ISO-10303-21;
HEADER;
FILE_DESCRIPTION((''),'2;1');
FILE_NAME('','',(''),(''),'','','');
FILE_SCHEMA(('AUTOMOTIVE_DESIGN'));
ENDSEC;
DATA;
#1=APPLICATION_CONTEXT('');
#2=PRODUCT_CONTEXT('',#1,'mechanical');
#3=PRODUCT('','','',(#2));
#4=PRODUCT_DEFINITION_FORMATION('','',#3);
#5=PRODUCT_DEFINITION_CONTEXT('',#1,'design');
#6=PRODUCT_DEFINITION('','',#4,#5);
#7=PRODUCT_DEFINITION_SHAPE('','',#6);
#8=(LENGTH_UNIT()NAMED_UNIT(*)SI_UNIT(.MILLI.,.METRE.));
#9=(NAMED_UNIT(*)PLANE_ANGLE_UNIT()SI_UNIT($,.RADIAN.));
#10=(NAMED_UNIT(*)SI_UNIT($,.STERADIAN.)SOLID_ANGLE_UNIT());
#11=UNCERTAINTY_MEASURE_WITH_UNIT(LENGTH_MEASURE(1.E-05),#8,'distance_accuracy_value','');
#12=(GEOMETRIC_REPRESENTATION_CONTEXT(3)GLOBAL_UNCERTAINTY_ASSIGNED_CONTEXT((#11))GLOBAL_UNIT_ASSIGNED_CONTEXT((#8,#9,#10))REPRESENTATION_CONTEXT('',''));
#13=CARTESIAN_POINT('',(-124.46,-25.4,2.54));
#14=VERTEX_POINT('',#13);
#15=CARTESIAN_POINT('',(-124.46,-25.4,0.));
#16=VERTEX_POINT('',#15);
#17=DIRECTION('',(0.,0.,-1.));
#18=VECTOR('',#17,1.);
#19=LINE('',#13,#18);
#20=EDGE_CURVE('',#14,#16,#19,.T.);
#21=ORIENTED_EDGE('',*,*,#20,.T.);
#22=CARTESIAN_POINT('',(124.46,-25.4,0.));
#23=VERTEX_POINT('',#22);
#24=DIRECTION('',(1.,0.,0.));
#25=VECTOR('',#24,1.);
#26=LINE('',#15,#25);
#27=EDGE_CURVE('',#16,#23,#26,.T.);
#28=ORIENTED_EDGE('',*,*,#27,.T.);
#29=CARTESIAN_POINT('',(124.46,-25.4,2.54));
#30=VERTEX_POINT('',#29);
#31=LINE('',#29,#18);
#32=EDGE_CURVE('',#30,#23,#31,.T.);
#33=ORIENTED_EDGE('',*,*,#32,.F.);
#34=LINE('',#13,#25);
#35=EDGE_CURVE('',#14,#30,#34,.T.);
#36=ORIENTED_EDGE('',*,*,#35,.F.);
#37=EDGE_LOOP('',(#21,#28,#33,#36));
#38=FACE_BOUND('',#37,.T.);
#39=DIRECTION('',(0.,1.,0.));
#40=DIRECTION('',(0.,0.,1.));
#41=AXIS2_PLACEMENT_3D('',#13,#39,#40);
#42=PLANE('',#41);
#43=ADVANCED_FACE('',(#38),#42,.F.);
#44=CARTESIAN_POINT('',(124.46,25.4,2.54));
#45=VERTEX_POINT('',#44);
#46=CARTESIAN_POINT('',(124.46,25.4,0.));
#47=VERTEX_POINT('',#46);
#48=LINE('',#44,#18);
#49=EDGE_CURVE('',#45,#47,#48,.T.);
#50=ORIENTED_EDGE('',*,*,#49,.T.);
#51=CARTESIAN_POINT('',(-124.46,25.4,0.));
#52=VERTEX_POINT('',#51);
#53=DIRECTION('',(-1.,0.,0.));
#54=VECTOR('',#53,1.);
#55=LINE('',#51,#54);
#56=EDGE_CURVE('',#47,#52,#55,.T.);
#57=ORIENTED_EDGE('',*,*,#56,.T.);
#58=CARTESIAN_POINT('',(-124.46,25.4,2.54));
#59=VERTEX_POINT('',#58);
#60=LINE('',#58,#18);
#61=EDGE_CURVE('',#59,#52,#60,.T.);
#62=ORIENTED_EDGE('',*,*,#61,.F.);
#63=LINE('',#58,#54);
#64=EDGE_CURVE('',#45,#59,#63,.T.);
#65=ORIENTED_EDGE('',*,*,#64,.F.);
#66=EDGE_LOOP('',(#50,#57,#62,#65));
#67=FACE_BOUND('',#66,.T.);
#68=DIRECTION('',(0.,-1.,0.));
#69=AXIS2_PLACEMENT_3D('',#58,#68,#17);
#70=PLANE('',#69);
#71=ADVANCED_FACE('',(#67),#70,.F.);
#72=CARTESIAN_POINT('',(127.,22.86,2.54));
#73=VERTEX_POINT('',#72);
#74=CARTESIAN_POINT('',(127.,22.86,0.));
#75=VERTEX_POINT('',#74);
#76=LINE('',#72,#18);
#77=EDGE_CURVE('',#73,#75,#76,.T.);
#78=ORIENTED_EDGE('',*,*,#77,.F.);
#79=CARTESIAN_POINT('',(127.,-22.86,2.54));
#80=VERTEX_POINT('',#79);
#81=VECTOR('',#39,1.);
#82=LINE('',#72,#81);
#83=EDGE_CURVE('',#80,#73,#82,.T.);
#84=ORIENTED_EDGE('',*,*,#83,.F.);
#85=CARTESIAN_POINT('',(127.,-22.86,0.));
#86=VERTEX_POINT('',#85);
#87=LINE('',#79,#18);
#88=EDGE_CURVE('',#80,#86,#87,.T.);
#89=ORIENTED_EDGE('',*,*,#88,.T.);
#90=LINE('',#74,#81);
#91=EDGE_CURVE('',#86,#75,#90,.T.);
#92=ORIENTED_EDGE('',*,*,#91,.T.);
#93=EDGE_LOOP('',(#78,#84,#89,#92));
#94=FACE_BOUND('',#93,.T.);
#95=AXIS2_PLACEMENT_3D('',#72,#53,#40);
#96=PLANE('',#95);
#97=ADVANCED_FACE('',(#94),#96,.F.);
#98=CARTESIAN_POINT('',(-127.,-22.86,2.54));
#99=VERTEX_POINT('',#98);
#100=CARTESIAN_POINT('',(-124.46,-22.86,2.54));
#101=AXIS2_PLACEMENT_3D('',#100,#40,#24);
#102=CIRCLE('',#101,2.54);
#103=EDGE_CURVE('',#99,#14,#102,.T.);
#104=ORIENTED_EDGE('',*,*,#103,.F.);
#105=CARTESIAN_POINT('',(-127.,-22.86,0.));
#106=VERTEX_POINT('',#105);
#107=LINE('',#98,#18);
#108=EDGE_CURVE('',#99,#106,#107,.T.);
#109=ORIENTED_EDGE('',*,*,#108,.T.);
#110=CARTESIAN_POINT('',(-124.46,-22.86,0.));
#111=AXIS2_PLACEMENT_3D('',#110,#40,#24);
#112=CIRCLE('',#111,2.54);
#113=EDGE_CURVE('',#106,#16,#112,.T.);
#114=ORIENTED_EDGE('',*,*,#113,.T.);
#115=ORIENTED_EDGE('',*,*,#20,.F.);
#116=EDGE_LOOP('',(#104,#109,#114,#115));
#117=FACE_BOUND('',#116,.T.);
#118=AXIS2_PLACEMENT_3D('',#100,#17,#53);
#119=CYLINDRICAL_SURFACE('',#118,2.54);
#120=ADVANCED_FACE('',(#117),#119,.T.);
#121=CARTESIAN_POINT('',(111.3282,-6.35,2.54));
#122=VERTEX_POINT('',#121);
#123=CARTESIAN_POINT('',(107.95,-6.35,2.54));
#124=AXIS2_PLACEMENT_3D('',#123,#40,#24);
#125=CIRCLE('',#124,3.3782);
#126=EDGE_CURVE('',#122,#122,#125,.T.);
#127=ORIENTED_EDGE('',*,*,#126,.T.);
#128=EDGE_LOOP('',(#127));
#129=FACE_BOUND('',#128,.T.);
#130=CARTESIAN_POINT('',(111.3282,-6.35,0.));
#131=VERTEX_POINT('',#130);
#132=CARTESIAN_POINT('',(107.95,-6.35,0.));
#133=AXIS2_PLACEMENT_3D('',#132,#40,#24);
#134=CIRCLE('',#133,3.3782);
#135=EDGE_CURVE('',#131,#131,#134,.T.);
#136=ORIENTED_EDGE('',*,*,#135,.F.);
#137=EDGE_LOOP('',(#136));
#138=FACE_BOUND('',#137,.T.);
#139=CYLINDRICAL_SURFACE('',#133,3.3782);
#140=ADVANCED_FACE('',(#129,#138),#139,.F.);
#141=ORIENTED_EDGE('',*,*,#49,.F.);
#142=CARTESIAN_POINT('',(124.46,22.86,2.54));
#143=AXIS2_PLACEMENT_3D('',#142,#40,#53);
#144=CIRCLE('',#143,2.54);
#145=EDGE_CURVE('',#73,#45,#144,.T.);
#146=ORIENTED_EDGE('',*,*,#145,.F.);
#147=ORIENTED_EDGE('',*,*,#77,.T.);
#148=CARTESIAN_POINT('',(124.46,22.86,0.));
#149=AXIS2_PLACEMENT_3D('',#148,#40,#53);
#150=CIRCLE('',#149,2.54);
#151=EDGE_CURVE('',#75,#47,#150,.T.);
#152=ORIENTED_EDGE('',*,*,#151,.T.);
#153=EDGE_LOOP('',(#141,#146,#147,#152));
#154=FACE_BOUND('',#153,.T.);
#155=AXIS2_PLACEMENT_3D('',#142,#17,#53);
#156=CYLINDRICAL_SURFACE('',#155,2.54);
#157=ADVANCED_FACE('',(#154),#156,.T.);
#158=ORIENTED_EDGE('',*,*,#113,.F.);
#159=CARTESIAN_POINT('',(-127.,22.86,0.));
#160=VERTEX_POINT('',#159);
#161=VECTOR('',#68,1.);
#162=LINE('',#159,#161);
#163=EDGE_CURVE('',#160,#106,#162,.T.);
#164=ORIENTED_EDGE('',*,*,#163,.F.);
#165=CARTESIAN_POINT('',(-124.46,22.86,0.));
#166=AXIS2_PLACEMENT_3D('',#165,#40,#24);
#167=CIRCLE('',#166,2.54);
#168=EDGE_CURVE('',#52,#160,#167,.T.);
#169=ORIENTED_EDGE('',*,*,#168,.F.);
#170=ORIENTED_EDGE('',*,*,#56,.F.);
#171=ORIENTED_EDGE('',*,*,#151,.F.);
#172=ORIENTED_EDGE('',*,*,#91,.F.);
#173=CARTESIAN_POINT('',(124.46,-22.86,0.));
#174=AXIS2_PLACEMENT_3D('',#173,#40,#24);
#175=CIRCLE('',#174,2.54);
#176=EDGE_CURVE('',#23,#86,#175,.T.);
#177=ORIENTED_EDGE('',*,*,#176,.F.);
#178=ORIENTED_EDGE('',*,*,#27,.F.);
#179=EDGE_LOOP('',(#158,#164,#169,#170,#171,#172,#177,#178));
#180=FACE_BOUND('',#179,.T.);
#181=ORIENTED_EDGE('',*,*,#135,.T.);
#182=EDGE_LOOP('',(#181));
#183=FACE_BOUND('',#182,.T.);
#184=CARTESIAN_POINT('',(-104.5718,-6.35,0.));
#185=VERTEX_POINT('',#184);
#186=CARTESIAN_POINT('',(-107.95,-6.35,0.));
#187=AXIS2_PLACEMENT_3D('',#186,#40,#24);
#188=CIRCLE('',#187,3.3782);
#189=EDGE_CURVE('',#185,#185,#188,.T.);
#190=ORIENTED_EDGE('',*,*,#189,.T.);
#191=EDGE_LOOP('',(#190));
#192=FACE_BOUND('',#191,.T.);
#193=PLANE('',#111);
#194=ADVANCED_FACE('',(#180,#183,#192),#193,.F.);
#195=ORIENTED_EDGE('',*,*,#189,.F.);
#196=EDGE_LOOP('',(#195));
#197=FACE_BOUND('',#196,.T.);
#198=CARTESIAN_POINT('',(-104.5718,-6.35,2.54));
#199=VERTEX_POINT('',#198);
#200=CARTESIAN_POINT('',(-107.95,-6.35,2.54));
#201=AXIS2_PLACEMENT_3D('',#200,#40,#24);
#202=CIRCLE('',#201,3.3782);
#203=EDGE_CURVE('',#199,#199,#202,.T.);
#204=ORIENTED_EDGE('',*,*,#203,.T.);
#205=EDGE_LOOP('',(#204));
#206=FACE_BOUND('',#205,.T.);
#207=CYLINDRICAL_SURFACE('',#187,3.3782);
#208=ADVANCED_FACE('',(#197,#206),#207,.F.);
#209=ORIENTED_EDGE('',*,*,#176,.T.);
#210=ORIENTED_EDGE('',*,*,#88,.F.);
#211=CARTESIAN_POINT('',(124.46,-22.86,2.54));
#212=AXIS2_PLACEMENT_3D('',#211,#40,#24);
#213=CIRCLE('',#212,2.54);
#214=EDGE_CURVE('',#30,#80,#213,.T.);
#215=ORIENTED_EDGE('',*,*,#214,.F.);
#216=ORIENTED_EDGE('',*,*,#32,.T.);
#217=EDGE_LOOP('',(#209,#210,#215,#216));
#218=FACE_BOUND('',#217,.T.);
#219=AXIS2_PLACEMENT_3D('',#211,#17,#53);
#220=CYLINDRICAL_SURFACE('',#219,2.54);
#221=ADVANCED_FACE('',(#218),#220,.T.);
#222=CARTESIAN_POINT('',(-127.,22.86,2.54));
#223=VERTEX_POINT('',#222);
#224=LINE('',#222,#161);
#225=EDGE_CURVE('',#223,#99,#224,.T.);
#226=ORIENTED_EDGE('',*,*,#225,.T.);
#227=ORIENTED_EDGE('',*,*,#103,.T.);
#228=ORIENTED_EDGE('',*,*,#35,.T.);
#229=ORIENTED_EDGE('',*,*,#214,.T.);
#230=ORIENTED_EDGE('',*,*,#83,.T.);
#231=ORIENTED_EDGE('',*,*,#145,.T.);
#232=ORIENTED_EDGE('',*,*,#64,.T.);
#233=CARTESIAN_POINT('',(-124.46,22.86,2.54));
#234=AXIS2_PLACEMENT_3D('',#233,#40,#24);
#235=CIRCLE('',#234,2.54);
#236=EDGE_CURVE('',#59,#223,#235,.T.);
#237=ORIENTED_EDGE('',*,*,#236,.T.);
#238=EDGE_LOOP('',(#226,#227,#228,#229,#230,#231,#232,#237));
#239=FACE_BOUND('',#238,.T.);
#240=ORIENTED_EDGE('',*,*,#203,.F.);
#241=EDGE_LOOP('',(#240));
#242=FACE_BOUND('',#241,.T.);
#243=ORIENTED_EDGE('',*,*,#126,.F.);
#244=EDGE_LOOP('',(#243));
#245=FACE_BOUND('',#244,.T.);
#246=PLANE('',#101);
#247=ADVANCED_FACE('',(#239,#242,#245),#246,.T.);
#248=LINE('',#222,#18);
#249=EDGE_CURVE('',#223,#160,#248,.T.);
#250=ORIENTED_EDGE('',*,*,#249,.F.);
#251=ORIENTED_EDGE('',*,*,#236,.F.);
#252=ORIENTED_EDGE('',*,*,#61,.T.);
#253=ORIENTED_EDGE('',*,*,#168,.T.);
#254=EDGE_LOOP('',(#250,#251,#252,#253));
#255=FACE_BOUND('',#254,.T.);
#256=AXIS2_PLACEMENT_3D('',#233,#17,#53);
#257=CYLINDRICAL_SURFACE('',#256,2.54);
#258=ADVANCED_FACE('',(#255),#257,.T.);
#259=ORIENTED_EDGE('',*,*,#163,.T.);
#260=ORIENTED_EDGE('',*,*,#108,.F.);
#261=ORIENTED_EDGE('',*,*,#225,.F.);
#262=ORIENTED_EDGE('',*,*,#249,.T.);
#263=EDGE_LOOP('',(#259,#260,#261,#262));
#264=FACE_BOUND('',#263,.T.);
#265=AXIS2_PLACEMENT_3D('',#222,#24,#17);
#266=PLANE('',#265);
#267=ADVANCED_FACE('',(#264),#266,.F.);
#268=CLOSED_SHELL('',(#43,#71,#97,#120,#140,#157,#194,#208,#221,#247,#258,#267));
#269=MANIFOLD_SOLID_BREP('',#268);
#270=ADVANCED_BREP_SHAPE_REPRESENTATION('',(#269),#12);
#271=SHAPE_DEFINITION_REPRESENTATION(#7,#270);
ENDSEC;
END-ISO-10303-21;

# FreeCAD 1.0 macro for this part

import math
import FreeCAD as App
import Part
import Sketcher
from FreeCAD import Vector
Q = App.Units.Quantity

doc = App.newDocument("Part")
body = doc.addObject("PartDesign::Body", "Body")

# Sketch on XY plane
sketch1 = doc.addObject("Sketcher::SketchObject", "Sketch")
body.addObject(sketch1)
sketch1.AttachmentSupport = (doc.XY_Plane, [""])
sketch1.MapMode = "FlatFace"
sketch1.addGeometry(Part.LineSegment(Vector(124.5, 25.4, 0), Vector(-124.5, 25.4, 0)), False)
sketch1.addGeometry(Part.ArcOfCircle(Part.Circle(Vector(-124.5, 22.9, 0), Vector(0, 0, 1), 2.5), math.radians(90), math.radians(180)), False)
sketch1.addGeometry(Part.LineSegment(Vector(-127, 22.9, 0), Vector(-127, -22.9, 0)), False)
sketch1.addGeometry(Part.ArcOfCircle(Part.Circle(Vector(-124.5, -22.9, 0), Vector(0, 0, 1), 2.5), math.radians(-180), math.radians(-90)), False)
sketch1.addGeometry(Part.LineSegment(Vector(-124.5, -25.4, 0), Vector(124.5, -25.4, 0)), False)
sketch1.addGeometry(Part.ArcOfCircle(Part.Circle(Vector(124.5, -22.9, 0), Vector(0, 0, 1), 2.5), math.radians(-90), math.radians(0)), False)
sketch1.addGeometry(Part.LineSegment(Vector(127, -22.9, 0), Vector(127, 22.9, 0)), False)
sketch1.addGeometry(Part.ArcOfCircle(Part.Circle(Vector(124.5, 22.9, 0), Vector(0, 0, 1), 2.5), math.radians(0), math.radians(90)), False)
sketch1.addConstraint(Sketcher.Constraint("Tangent", 0, 2, 1, 1))
sketch1.addConstraint(Sketcher.Constraint("Tangent", 1, 2, 2, 1))
sketch1.addConstraint(Sketcher.Constraint("Tangent", 2, 2, 3, 1))
sketch1.addConstraint(Sketcher.Constraint("Tangent", 3, 2, 4, 1))
sketch1.addConstraint(Sketcher.Constraint("Tangent", 4, 2, 5, 1))
sketch1.addConstraint(Sketcher.Constraint("Tangent", 5, 2, 6, 1))
sketch1.addConstraint(Sketcher.Constraint("Tangent", 6, 2, 7, 1))
sketch1.addConstraint(Sketcher.Constraint("Tangent", 7, 2, 0, 1))
sketch1.addConstraint(Sketcher.Constraint("Horizontal", 0))
sketch1.addConstraint(Sketcher.Constraint("Vertical", 2))
sketch1.addConstraint(Sketcher.Constraint("Horizontal", 4))
sketch1.addConstraint(Sketcher.Constraint("Vertical", 6))
sketch1.addConstraint(Sketcher.Constraint("Equal", 1, 3))
sketch1.addConstraint(Sketcher.Constraint("Equal", 3, 5))
sketch1.addConstraint(Sketcher.Constraint("Equal", 5, 7))
sketch1.addConstraint(Sketcher.Constraint("Symmetric", 1, 3, 5, 3, -1, 1))
sketch1.addConstraint(Sketcher.Constraint("Radius", 1, Q("0.1 in")))
sketch1.addConstraint(Sketcher.Constraint("DistanceX", 0, 2, 0, 1, Q("9.8 in")))
sketch1.addConstraint(Sketcher.Constraint("DistanceY", 2, 2, 2, 1, Q("1.8 in")))
pad1 = doc.addObject("PartDesign::Pad", "Pad")
body.addObject(pad1)
pad1.Profile = sketch1
pad1.Length = Q("0.1 in")

# Sketch on XY plane
sketch2 = doc.addObject("Sketcher::SketchObject", "Sketch001")
body.addObject(sketch2)
sketch2.AttachmentSupport = (doc.XY_Plane, [""])
sketch2.MapMode = "FlatFace"
sketch2.AttachmentOffset = App.Placement(Vector(0, 0, 0.1 * 25.4), App.Rotation())
sketch2.addGeometry(Part.Circle(Vector(-108, -6.3, 0), Vector(0, 0, 1), 3.4), False)
sketch2.addConstraint(Sketcher.Constraint("Diameter", 0, Q("0.266 in")))
sketch2.addConstraint(Sketcher.Constraint("DistanceX", 0, 3, -1, 1, Q("4.25 in")))
sketch2.addConstraint(Sketcher.Constraint("DistanceY", 0, 3, -1, 1, Q("0.25 in")))
pocket1 = doc.addObject("PartDesign::Pocket", "Pocket")
body.addObject(pocket1)
pocket1.Profile = sketch2
pocket1.Type = "ThroughAll"

# Sketch on XY plane
sketch3 = doc.addObject("Sketcher::SketchObject", "Sketch002")
body.addObject(sketch3)
sketch3.AttachmentSupport = (doc.XY_Plane, [""])
sketch3.MapMode = "FlatFace"
sketch3.AttachmentOffset = App.Placement(Vector(0, 0, 0.1 * 25.4), App.Rotation())
sketch3.addGeometry(Part.Circle(Vector(108, -6.3, 0), Vector(0, 0, 1), 3.4), False)
sketch3.addConstraint(Sketcher.Constraint("Diameter", 0, Q("0.266 in")))
sketch3.addConstraint(Sketcher.Constraint("DistanceX", -1, 1, 0, 3, Q("4.25 in")))
sketch3.addConstraint(Sketcher.Constraint("DistanceY", 0, 3, -1, 1, Q("0.25 in")))
pocket2 = doc.addObject("PartDesign::Pocket", "Pocket001")
body.addObject(pocket2)
pocket2.Profile = sketch3
pocket2.Type = "ThroughAll"

doc.recompute()
